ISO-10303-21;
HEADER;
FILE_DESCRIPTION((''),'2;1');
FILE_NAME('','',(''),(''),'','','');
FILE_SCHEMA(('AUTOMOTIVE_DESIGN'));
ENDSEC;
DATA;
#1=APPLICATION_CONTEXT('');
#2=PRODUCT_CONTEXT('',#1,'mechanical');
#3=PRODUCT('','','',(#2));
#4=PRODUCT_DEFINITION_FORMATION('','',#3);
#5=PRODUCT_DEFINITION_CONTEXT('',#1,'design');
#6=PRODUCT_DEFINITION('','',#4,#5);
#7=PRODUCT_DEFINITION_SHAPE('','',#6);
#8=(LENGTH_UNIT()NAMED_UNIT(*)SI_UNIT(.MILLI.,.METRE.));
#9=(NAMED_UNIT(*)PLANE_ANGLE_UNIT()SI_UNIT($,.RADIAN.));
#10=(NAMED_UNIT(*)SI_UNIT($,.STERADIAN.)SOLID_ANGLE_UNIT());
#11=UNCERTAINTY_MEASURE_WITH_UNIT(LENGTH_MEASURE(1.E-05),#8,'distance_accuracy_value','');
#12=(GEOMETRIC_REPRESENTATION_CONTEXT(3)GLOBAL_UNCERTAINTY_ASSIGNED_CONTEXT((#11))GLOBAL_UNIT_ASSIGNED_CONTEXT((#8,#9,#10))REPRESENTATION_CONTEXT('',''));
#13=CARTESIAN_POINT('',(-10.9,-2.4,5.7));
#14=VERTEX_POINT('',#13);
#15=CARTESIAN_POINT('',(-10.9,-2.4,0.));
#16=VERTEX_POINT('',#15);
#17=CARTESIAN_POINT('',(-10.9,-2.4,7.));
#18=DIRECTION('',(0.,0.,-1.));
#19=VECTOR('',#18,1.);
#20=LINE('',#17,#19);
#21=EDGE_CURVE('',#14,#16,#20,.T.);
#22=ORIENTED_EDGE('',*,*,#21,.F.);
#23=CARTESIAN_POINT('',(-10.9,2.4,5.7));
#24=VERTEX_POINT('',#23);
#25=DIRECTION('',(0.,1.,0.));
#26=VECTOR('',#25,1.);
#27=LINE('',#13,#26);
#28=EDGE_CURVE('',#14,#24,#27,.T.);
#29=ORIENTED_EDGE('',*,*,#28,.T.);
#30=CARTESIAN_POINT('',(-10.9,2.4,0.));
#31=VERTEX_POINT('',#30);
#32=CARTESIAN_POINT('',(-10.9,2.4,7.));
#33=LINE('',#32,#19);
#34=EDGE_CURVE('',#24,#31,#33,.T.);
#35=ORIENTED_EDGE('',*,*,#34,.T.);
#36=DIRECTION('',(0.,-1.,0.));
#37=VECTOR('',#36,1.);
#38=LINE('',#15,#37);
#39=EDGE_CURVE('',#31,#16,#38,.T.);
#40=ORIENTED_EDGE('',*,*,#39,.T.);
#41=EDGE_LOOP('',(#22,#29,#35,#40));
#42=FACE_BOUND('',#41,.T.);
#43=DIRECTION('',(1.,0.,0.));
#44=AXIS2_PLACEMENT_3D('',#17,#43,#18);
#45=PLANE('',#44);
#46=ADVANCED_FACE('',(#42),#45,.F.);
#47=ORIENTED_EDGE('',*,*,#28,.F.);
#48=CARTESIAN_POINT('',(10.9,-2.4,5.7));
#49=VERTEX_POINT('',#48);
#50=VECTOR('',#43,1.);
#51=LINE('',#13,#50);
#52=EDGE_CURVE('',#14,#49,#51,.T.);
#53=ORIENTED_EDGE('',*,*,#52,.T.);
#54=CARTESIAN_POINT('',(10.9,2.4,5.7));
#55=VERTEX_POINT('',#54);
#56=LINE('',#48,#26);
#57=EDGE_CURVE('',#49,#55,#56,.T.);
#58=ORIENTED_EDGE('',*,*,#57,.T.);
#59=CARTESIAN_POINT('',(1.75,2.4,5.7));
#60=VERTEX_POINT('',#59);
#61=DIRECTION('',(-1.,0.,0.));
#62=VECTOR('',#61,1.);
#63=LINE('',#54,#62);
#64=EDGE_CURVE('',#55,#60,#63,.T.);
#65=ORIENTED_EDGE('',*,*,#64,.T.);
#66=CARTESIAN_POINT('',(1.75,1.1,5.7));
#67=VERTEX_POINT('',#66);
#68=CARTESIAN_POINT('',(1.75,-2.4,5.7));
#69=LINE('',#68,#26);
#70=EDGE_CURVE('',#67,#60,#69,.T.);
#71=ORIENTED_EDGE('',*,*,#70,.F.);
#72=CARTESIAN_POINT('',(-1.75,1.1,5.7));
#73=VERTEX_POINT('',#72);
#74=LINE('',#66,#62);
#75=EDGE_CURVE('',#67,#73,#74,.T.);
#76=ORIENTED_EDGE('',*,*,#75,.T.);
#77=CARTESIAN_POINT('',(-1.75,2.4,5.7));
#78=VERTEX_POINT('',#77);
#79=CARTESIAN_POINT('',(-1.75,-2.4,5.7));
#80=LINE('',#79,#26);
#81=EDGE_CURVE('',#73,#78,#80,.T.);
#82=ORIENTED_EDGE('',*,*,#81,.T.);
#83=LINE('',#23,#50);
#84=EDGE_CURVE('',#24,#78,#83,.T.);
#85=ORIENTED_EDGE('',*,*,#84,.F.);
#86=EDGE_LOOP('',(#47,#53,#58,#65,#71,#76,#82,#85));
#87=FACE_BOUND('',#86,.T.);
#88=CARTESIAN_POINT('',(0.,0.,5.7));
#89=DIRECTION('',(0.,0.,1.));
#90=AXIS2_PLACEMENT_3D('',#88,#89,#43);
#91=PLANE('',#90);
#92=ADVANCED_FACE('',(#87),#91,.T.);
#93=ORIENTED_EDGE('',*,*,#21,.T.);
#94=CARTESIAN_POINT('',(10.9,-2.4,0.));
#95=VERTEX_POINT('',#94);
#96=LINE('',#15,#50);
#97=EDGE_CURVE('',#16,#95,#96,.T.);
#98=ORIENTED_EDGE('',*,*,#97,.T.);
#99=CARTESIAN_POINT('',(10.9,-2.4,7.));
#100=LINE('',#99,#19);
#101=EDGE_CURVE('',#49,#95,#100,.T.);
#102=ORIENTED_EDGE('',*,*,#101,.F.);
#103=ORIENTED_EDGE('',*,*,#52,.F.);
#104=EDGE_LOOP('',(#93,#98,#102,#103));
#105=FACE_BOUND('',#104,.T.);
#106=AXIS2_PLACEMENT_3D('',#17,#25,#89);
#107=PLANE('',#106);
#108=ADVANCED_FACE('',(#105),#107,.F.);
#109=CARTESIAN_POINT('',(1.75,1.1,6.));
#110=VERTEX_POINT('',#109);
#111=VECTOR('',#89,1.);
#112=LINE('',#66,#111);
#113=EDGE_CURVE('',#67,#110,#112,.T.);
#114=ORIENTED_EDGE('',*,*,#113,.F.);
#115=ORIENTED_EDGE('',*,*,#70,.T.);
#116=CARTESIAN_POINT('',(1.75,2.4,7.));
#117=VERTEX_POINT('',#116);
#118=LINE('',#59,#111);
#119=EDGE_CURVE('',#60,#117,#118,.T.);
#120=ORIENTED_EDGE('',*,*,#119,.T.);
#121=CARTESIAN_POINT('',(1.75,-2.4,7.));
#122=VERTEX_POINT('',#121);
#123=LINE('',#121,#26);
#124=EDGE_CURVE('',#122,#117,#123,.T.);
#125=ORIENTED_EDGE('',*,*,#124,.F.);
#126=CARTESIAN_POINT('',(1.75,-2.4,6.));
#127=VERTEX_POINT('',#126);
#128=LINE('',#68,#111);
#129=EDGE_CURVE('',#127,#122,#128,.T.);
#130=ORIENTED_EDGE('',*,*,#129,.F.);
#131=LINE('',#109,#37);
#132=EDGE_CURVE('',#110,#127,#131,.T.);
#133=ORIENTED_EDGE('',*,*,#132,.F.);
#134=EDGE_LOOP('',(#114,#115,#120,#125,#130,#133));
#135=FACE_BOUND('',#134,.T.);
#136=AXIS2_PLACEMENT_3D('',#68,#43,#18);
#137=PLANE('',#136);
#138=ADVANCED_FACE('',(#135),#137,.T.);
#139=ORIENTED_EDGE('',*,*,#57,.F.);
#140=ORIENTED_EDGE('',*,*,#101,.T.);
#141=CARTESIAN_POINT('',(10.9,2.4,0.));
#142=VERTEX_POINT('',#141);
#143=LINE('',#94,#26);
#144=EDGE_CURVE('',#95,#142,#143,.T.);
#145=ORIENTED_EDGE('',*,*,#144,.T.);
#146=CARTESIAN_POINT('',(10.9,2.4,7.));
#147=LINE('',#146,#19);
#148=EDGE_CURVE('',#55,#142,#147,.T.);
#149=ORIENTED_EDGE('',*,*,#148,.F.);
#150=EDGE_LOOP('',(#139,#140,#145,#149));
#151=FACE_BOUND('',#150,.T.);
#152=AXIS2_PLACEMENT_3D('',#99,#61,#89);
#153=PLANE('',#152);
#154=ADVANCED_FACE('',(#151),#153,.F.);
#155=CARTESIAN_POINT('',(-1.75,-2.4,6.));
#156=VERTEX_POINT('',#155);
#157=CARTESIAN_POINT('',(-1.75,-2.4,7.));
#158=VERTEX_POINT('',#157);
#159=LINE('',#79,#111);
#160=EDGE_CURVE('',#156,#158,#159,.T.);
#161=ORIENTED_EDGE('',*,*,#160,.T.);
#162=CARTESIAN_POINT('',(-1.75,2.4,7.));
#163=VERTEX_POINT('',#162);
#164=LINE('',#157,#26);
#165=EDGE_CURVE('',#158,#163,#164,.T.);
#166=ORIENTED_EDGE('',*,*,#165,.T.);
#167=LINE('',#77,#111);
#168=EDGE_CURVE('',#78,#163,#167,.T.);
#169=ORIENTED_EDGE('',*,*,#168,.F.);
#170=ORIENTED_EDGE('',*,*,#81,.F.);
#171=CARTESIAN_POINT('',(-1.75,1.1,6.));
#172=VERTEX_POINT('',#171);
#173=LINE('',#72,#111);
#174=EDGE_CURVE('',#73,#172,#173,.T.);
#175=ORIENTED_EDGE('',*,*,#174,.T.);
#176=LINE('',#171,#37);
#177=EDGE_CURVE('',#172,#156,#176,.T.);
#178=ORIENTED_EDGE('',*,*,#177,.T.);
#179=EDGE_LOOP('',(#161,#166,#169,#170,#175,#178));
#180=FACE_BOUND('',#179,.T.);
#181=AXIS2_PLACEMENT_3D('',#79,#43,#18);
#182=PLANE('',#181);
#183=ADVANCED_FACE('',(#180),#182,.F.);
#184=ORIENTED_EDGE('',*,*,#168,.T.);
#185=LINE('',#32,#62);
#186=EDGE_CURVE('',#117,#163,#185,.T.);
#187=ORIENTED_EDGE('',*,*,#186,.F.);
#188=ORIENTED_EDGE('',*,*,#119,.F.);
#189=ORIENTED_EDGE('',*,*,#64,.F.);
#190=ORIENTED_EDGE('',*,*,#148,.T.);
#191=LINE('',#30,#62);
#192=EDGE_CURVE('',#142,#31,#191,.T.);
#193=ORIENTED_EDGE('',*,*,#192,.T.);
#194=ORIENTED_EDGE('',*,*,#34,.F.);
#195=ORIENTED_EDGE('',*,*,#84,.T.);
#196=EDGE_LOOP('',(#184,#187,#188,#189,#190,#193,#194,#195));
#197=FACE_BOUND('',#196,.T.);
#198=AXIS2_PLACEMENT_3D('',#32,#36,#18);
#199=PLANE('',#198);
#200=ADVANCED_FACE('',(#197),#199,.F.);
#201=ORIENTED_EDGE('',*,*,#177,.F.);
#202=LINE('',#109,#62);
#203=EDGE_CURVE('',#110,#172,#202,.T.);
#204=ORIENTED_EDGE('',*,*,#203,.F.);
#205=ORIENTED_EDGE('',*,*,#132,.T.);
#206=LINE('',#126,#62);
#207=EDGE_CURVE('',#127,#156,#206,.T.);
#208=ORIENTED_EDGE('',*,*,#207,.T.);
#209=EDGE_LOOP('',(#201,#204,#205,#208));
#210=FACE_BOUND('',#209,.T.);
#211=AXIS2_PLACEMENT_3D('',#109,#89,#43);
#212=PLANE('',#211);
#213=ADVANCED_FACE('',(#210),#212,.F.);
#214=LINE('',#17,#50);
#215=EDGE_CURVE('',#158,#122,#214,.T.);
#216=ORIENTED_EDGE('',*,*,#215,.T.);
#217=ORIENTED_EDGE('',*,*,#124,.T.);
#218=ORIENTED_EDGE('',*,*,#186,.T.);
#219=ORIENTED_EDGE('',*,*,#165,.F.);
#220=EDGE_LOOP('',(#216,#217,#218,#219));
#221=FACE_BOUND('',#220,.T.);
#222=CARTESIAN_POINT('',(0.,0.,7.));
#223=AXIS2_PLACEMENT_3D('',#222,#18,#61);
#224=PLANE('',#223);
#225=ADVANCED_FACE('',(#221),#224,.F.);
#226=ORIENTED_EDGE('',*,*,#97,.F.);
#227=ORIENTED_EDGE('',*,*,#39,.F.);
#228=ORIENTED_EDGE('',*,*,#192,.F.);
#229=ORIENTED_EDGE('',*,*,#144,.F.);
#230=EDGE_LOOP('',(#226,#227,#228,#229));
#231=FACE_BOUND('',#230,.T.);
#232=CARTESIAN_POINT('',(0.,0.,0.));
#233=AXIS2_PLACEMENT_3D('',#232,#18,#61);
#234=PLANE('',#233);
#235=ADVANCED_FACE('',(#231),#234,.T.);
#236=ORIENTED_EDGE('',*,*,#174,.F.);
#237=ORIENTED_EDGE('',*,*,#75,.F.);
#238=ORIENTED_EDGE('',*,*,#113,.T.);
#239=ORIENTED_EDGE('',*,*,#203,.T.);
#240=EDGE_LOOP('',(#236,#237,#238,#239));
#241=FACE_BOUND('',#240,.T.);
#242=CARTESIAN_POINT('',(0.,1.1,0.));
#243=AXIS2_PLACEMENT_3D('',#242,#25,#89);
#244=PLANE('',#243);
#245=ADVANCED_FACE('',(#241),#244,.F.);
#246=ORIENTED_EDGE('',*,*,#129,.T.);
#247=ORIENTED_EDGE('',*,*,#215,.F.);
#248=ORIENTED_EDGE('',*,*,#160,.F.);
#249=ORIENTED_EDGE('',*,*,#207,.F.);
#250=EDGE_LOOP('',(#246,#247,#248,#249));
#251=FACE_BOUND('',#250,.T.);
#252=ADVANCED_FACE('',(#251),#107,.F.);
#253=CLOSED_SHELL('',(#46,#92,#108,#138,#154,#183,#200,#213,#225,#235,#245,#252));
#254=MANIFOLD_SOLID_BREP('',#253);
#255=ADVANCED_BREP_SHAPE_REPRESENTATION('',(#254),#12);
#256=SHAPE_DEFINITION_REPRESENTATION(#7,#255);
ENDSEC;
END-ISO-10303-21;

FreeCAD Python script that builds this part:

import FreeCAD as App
import Part
import Sketcher


def add_polygon(sketch, points):
    """Adds a closed chain of lines whose ends are joined by coincident constraints."""
    first, n = sketch.GeometryCount, len(points)
    for a, b in zip(points, points[1:] + points[:1]):
        sketch.addGeometry(Part.LineSegment(App.Vector(*a, 0), App.Vector(*b, 0)), False)
    for i in range(n):
        sketch.addConstraint(Sketcher.Constraint("Coincident", first + i, 2, first + (i + 1) % n, 1))

doc = App.newDocument("Part")
body = doc.addObject("PartDesign::Body", "Body")

# Sketch on XY plane
sketch1 = doc.addObject("Sketcher::SketchObject", "Sketch")
body.addObject(sketch1)
sketch1.AttachmentSupport = (doc.XY_Plane, [""])
sketch1.MapMode = "FlatFace"
add_polygon(sketch1, [(-10.9, 2.4), (-10.9, -2.4), (10.9, -2.4), (10.9, 2.4)])  # lines 0-3
sketch1.addConstraint([
    Sketcher.Constraint("Vertical", 0),
    Sketcher.Constraint("Horizontal", 1),
    Sketcher.Constraint("Vertical", 2),
    Sketcher.Constraint("Horizontal", 3),
    Sketcher.Constraint("Symmetric", 0, 2, 2, 2, -1, 1),
    Sketcher.Constraint("DistanceX", 1, 1, 1, 2, 21.8),
    Sketcher.Constraint("DistanceY", 0, 2, 0, 1, 4.8),
])
pad1 = doc.addObject("PartDesign::Pad", "Pad")
body.addObject(pad1)
pad1.Profile = sketch1
pad1.Length = 7

# Sketch on XY plane
sketch2 = doc.addObject("Sketcher::SketchObject", "Sketch001")
body.addObject(sketch2)
sketch2.AttachmentSupport = (doc.XY_Plane, [""])
sketch2.MapMode = "FlatFace"
sketch2.AttachmentOffset = App.Placement(App.Vector(0, 0, 7), App.Rotation())
add_polygon(sketch2, [(-10.9, 2.4), (-10.9, -2.4), (-1.8, -2.4), (-1.8, 2.4)])  # lines 0-3
add_polygon(sketch2, [(1.8, 2.4), (1.8, -2.4), (10.9, -2.4), (10.9, 2.4)])  # lines 4-7
sketch2.addConstraint([
    Sketcher.Constraint("Vertical", 0),
    Sketcher.Constraint("Horizontal", 1),
    Sketcher.Constraint("Vertical", 2),
    Sketcher.Constraint("Horizontal", 3),
    Sketcher.Constraint("Vertical", 4),
    Sketcher.Constraint("Horizontal", 5),
    Sketcher.Constraint("Vertical", 6),
    Sketcher.Constraint("Horizontal", 7),
    Sketcher.Constraint("Symmetric", 2, 2, 4, 2, -1, 1),
    Sketcher.Constraint("Symmetric", 0, 2, 6, 2, -1, 1),
    Sketcher.Constraint("Horizontal", 1, 2, 4, 2),
    Sketcher.Constraint("DistanceY", 0, 2, 0, 1, 4.8),
    Sketcher.Constraint("DistanceX", 1, 1, 1, 2, 9.15),
    Sketcher.Constraint("DistanceX", 0, 2, -1, 1, 10.9),
])
pocket1 = doc.addObject("PartDesign::Pocket", "Pocket")
body.addObject(pocket1)
pocket1.Profile = sketch2
pocket1.Length = 1.3

# Sketch on XZ plane
sketch3 = doc.addObject("Sketcher::SketchObject", "Sketch002")
body.addObject(sketch3)
sketch3.AttachmentSupport = (doc.XZ_Plane, [""])
sketch3.MapMode = "FlatFace"
sketch3.AttachmentOffset = App.Placement(App.Vector(0, 0, 2.4), App.Rotation())
add_polygon(sketch3, [(-1.75, 6), (-1.75, 5.7), (1.75, 5.7), (1.75, 6)])  # lines 0-3
sketch3.addConstraint([
    Sketcher.Constraint("Vertical", 0),
    Sketcher.Constraint("Horizontal", 1),
    Sketcher.Constraint("Vertical", 2),
    Sketcher.Constraint("Horizontal", 3),
    Sketcher.Constraint("DistanceX", 1, 1, 1, 2, 3.5),
    Sketcher.Constraint("DistanceY", 0, 2, 0, 1, 0.3),
    Sketcher.Constraint("DistanceY", -1, 1, 2, 2, 6.0),
    Sketcher.Constraint("DistanceX", 0, 2, -1, 1, 1.75),
])
pocket2 = doc.addObject("PartDesign::Pocket", "Pocket001")
body.addObject(pocket2)
pocket2.Profile = sketch3
pocket2.Length = 3.5

doc.recompute()
